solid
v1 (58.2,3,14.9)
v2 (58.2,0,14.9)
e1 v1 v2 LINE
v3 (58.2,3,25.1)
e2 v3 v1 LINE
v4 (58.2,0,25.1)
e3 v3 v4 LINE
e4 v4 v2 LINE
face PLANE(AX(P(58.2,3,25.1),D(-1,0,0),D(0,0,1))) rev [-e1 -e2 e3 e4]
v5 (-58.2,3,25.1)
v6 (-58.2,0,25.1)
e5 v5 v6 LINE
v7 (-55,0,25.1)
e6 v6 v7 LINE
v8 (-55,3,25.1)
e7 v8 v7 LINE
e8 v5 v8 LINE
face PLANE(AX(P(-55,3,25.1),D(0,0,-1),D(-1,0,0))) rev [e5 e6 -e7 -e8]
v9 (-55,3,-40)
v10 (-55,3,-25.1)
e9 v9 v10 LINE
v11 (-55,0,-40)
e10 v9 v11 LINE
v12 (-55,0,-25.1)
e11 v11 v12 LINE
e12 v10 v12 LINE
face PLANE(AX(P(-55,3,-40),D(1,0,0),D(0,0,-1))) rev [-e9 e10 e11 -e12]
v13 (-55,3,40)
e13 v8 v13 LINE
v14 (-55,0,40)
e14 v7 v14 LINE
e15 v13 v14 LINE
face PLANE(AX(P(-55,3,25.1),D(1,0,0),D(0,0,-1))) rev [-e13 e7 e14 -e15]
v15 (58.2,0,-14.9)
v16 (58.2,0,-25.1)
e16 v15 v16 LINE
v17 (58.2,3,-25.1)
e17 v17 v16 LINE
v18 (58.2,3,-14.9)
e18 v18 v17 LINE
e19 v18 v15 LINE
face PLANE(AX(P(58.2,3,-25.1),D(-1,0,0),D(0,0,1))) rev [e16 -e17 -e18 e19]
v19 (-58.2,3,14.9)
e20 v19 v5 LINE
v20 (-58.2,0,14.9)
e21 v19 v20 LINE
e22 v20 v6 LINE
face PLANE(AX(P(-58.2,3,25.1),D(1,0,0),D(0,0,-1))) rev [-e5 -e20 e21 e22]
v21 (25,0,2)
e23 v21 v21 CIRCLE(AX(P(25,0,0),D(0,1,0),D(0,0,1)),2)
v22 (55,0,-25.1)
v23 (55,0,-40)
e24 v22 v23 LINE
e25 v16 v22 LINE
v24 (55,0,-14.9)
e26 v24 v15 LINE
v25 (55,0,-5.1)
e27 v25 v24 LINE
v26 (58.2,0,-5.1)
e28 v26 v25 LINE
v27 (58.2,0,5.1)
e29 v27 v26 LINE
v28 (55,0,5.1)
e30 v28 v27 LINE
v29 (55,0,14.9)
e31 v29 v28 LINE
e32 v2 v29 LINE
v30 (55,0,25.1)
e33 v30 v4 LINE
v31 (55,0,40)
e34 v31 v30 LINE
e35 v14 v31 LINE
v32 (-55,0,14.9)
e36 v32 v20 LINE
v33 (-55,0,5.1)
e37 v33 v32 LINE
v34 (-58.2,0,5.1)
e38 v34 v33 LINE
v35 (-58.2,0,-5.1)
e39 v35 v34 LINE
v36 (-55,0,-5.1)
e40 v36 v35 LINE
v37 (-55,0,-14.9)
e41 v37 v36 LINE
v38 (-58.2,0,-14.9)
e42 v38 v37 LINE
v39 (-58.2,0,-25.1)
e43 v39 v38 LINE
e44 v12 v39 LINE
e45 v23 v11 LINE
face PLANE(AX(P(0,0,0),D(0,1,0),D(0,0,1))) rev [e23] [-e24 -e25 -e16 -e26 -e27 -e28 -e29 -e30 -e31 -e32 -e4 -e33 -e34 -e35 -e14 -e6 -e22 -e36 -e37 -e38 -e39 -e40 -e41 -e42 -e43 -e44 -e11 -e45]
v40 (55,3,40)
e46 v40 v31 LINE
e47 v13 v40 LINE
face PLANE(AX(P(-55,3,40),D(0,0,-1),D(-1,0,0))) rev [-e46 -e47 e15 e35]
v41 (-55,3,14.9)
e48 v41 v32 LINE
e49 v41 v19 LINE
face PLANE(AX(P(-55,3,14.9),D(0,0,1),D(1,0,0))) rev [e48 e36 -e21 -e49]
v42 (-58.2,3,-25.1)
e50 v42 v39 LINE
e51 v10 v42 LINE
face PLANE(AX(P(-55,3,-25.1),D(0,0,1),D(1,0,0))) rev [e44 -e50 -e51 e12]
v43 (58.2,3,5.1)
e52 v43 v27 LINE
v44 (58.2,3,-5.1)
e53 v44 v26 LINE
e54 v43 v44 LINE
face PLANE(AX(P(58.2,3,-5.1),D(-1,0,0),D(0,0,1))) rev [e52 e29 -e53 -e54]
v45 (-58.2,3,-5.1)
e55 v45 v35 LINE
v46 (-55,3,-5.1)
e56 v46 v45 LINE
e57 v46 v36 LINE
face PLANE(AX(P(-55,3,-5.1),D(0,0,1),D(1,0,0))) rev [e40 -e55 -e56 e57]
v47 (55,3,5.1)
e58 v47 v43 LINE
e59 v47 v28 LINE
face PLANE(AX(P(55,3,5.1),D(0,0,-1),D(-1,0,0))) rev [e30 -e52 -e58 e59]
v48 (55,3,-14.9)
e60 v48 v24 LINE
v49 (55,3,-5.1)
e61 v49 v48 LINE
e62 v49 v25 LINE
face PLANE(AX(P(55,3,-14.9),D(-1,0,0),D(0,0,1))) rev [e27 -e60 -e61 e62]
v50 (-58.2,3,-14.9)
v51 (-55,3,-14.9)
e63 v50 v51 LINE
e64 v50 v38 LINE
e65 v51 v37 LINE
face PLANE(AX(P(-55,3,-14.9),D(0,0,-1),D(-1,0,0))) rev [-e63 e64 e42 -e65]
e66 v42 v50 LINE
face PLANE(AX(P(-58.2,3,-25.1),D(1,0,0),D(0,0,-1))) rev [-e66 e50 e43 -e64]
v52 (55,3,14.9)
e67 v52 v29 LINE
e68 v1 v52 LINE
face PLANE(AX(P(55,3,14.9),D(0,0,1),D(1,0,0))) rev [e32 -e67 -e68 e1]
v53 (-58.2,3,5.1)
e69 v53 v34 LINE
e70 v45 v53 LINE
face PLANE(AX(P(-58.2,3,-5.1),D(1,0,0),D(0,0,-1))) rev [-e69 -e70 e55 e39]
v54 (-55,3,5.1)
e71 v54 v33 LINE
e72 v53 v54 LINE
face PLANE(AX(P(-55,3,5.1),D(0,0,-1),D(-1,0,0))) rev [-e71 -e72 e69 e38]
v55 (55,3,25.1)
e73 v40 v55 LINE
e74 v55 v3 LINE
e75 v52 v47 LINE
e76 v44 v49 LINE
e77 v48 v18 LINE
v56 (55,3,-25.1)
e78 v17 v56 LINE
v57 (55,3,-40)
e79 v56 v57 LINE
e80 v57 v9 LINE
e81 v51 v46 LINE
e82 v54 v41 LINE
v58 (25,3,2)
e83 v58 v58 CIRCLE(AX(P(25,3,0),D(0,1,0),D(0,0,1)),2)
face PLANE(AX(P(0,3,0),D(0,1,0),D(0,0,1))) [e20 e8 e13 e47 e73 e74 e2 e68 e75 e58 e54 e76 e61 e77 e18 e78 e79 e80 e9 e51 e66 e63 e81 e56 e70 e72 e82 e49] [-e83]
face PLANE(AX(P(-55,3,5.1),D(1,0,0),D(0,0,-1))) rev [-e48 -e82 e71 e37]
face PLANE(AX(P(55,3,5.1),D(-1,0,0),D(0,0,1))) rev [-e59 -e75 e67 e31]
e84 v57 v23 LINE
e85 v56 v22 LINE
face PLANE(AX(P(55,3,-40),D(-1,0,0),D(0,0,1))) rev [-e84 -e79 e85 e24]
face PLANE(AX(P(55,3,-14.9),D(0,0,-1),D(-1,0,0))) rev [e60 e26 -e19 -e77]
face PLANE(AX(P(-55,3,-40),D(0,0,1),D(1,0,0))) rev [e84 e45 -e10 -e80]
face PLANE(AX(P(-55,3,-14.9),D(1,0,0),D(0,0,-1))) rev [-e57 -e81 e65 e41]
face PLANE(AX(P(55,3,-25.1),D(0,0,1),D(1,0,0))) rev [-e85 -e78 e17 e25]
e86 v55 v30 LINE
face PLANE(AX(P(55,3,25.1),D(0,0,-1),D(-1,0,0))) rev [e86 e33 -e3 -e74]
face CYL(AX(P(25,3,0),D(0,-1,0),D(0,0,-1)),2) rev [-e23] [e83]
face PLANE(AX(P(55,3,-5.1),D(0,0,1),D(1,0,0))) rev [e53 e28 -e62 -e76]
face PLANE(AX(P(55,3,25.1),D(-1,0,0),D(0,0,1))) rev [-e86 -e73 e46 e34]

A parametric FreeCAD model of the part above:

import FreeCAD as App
import Part
import Sketcher

V = App.Vector

doc = App.newDocument("Part")
body = doc.addObject("PartDesign::Body", "Body")

# Sketch on XZ plane
sketch1 = doc.addObject("Sketcher::SketchObject", "Sketch")
body.addObject(sketch1)
sketch1.AttachmentSupport = (doc.XZ_Plane, [""])
sketch1.MapMode = "FlatFace"
sketch1.addGeometry([
    Part.LineSegment(V(55, -5.1, 0), V(55, -14.9, 0)),  # 0
    Part.LineSegment(V(55, -14.9, 0), V(58.2, -14.9, 0)),  # 1
    Part.LineSegment(V(58.2, -14.9, 0), V(58.2, -25.1, 0)),  # 2
    Part.LineSegment(V(58.2, -25.1, 0), V(55, -25.1, 0)),  # 3
    Part.LineSegment(V(55, -25.1, 0), V(55, -40, 0)),  # 4
    Part.LineSegment(V(55, -40, 0), V(-55, -40, 0)),  # 5
    Part.LineSegment(V(-55, -40, 0), V(-55, -25.1, 0)),  # 6
    Part.LineSegment(V(-55, -25.1, 0), V(-58.2, -25.1, 0)),  # 7
    Part.LineSegment(V(-58.2, -25.1, 0), V(-58.2, -14.9, 0)),  # 8
    Part.LineSegment(V(-58.2, -14.9, 0), V(-55, -14.9, 0)),  # 9
    Part.LineSegment(V(-55, -14.9, 0), V(-55, -5.1, 0)),  # 10
    Part.LineSegment(V(-55, -5.1, 0), V(-58.2, -5.1, 0)),  # 11
    Part.LineSegment(V(-58.2, -5.1, 0), V(-58.2, 5.1, 0)),  # 12
    Part.LineSegment(V(-58.2, 5.1, 0), V(-55, 5.1, 0)),  # 13
    Part.LineSegment(V(-55, 5.1, 0), V(-55, 14.9, 0)),  # 14
    Part.LineSegment(V(-55, 14.9, 0), V(-58.2, 14.9, 0)),  # 15
    Part.LineSegment(V(-58.2, 14.9, 0), V(-58.2, 25.1, 0)),  # 16
    Part.LineSegment(V(-58.2, 25.1, 0), V(-55, 25.1, 0)),  # 17
    Part.LineSegment(V(-55, 25.1, 0), V(-55, 40, 0)),  # 18
    Part.LineSegment(V(-55, 40, 0), V(55, 40, 0)),  # 19
    Part.LineSegment(V(55, 40, 0), V(55, 25.1, 0)),  # 20
    Part.LineSegment(V(55, 25.1, 0), V(58.2, 25.1, 0)),  # 21
    Part.LineSegment(V(58.2, 25.1, 0), V(58.2, 14.9, 0)),  # 22
    Part.LineSegment(V(58.2, 14.9, 0), V(55, 14.9, 0)),  # 23
    Part.LineSegment(V(55, 14.9, 0), V(55, 5.1, 0)),  # 24
    Part.LineSegment(V(55, 5.1, 0), V(58.2, 5.1, 0)),  # 25
    Part.LineSegment(V(58.2, 5.1, 0), V(58.2, -5.1, 0)),  # 26
    Part.LineSegment(V(58.2, -5.1, 0), V(55, -5.1, 0)),  # 27
    Part.Circle(V(25, 0, 0), V(0, 0, 1), 2),  # 28
], False)
sketch1.addConstraint([
    Sketcher.Constraint("Coincident", 0, 2, 1, 1),
    Sketcher.Constraint("Coincident", 1, 2, 2, 1),
    Sketcher.Constraint("Coincident", 2, 2, 3, 1),
    Sketcher.Constraint("Coincident", 3, 2, 4, 1),
    Sketcher.Constraint("Coincident", 4, 2, 5, 1),
    Sketcher.Constraint("Coincident", 5, 2, 6, 1),
    Sketcher.Constraint("Coincident", 6, 2, 7, 1),
    Sketcher.Constraint("Coincident", 7, 2, 8, 1),
    Sketcher.Constraint("Coincident", 8, 2, 9, 1),
    Sketcher.Constraint("Coincident", 9, 2, 10, 1),
    Sketcher.Constraint("Coincident", 10, 2, 11, 1),
    Sketcher.Constraint("Coincident", 11, 2, 12, 1),
    Sketcher.Constraint("Coincident", 12, 2, 13, 1),
    Sketcher.Constraint("Coincident", 13, 2, 14, 1),
    Sketcher.Constraint("Coincident", 14, 2, 15, 1),
    Sketcher.Constraint("Coincident", 15, 2, 16, 1),
    Sketcher.Constraint("Coincident", 16, 2, 17, 1),
    Sketcher.Constraint("Coincident", 17, 2, 18, 1),
    Sketcher.Constraint("Coincident", 18, 2, 19, 1),
    Sketcher.Constraint("Coincident", 19, 2, 20, 1),
    Sketcher.Constraint("Coincident", 20, 2, 21, 1),
    Sketcher.Constraint("Coincident", 21, 2, 22, 1),
    Sketcher.Constraint("Coincident", 22, 2, 23, 1),
    Sketcher.Constraint("Coincident", 23, 2, 24, 1),
    Sketcher.Constraint("Coincident", 24, 2, 25, 1),
    Sketcher.Constraint("Coincident", 25, 2, 26, 1),
    Sketcher.Constraint("Coincident", 26, 2, 27, 1),
    Sketcher.Constraint("Coincident", 27, 2, 0, 1),
    Sketcher.Constraint("Vertical", 0),
    Sketcher.Constraint("Horizontal", 1),
    Sketcher.Constraint("Vertical", 2),
    Sketcher.Constraint("Horizontal", 3),
    Sketcher.Constraint("Vertical", 4),
    Sketcher.Constraint("Horizontal", 5),
    Sketcher.Constraint("Vertical", 6),
    Sketcher.Constraint("Horizontal", 7),
    Sketcher.Constraint("Vertical", 8),
    Sketcher.Constraint("Horizontal", 9),
    Sketcher.Constraint("Vertical", 10),
    Sketcher.Constraint("Horizontal", 11),
    Sketcher.Constraint("Vertical", 12),
    Sketcher.Constraint("Horizontal", 13),
    Sketcher.Constraint("Vertical", 14),
    Sketcher.Constraint("Horizontal", 15),
    Sketcher.Constraint("Vertical", 16),
    Sketcher.Constraint("Horizontal", 17),
    Sketcher.Constraint("Vertical", 18),
    Sketcher.Constraint("Horizontal", 19),
    Sketcher.Constraint("Vertical", 20),
    Sketcher.Constraint("Horizontal", 21),
    Sketcher.Constraint("Vertical", 22),
    Sketcher.Constraint("Horizontal", 23),
    Sketcher.Constraint("Vertical", 24),
    Sketcher.Constraint("Horizontal", 25),
    Sketcher.Constraint("Vertical", 26),
    Sketcher.Constraint("Horizontal", 27),
    Sketcher.Constraint("Symmetric", 0, 2, 14, 2, -1, 1),
    Sketcher.Constraint("Symmetric", 2, 2, 16, 2, -1, 1),
    Sketcher.Constraint("Symmetric", 4, 2, 18, 2, -1, 1),
    Sketcher.Constraint("Symmetric", 6, 2, 20, 2, -1, 1),
    Sketcher.Constraint("Symmetric", 8, 2, 22, 2, -1, 1),
    Sketcher.Constraint("Symmetric", 10, 2, 24, 2, -1, 1),
    Sketcher.Constraint("Symmetric", 12, 2, 26, 2, -1, 1),
    Sketcher.Constraint("Symmetric", 3, 2, 6, 2, -2),
    Sketcher.Constraint("Symmetric", 1, 2, 8, 2, -2),
    Sketcher.Constraint("Symmetric", 13, 2, 24, 2, -2),
    Sketcher.Constraint("PointOnObject", 28, 3, -1),
    Sketcher.Constraint("Vertical", 0, 2, 3, 2),
    Sketcher.Constraint("Vertical", 8, 2, 11, 2),
    Sketcher.Constraint("Equal", 8, 12),
    Sketcher.Constraint("Diameter", 28, 4.0),
    Sketcher.Constraint("DistanceX", 5, 2, 5, 1, 110.0),
    Sketcher.Constraint("DistanceX", 1, 1, 1, 2, 3.2),
    Sketcher.Constraint("DistanceY", 0, 2, 0, 1, 9.8),
    Sketcher.Constraint("DistanceY", 2, 2, 2, 1, 10.2),
    Sketcher.Constraint("DistanceY", 4, 2, 4, 1, 14.9),
    Sketcher.Constraint("DistanceX", -1, 1, 28, 3, 25.0),
])
pad1 = doc.addObject("PartDesign::Pad", "Pad")
body.addObject(pad1)
pad1.Profile = sketch1
pad1.Length = 3
pad1.Reversed = True

doc.recompute()
